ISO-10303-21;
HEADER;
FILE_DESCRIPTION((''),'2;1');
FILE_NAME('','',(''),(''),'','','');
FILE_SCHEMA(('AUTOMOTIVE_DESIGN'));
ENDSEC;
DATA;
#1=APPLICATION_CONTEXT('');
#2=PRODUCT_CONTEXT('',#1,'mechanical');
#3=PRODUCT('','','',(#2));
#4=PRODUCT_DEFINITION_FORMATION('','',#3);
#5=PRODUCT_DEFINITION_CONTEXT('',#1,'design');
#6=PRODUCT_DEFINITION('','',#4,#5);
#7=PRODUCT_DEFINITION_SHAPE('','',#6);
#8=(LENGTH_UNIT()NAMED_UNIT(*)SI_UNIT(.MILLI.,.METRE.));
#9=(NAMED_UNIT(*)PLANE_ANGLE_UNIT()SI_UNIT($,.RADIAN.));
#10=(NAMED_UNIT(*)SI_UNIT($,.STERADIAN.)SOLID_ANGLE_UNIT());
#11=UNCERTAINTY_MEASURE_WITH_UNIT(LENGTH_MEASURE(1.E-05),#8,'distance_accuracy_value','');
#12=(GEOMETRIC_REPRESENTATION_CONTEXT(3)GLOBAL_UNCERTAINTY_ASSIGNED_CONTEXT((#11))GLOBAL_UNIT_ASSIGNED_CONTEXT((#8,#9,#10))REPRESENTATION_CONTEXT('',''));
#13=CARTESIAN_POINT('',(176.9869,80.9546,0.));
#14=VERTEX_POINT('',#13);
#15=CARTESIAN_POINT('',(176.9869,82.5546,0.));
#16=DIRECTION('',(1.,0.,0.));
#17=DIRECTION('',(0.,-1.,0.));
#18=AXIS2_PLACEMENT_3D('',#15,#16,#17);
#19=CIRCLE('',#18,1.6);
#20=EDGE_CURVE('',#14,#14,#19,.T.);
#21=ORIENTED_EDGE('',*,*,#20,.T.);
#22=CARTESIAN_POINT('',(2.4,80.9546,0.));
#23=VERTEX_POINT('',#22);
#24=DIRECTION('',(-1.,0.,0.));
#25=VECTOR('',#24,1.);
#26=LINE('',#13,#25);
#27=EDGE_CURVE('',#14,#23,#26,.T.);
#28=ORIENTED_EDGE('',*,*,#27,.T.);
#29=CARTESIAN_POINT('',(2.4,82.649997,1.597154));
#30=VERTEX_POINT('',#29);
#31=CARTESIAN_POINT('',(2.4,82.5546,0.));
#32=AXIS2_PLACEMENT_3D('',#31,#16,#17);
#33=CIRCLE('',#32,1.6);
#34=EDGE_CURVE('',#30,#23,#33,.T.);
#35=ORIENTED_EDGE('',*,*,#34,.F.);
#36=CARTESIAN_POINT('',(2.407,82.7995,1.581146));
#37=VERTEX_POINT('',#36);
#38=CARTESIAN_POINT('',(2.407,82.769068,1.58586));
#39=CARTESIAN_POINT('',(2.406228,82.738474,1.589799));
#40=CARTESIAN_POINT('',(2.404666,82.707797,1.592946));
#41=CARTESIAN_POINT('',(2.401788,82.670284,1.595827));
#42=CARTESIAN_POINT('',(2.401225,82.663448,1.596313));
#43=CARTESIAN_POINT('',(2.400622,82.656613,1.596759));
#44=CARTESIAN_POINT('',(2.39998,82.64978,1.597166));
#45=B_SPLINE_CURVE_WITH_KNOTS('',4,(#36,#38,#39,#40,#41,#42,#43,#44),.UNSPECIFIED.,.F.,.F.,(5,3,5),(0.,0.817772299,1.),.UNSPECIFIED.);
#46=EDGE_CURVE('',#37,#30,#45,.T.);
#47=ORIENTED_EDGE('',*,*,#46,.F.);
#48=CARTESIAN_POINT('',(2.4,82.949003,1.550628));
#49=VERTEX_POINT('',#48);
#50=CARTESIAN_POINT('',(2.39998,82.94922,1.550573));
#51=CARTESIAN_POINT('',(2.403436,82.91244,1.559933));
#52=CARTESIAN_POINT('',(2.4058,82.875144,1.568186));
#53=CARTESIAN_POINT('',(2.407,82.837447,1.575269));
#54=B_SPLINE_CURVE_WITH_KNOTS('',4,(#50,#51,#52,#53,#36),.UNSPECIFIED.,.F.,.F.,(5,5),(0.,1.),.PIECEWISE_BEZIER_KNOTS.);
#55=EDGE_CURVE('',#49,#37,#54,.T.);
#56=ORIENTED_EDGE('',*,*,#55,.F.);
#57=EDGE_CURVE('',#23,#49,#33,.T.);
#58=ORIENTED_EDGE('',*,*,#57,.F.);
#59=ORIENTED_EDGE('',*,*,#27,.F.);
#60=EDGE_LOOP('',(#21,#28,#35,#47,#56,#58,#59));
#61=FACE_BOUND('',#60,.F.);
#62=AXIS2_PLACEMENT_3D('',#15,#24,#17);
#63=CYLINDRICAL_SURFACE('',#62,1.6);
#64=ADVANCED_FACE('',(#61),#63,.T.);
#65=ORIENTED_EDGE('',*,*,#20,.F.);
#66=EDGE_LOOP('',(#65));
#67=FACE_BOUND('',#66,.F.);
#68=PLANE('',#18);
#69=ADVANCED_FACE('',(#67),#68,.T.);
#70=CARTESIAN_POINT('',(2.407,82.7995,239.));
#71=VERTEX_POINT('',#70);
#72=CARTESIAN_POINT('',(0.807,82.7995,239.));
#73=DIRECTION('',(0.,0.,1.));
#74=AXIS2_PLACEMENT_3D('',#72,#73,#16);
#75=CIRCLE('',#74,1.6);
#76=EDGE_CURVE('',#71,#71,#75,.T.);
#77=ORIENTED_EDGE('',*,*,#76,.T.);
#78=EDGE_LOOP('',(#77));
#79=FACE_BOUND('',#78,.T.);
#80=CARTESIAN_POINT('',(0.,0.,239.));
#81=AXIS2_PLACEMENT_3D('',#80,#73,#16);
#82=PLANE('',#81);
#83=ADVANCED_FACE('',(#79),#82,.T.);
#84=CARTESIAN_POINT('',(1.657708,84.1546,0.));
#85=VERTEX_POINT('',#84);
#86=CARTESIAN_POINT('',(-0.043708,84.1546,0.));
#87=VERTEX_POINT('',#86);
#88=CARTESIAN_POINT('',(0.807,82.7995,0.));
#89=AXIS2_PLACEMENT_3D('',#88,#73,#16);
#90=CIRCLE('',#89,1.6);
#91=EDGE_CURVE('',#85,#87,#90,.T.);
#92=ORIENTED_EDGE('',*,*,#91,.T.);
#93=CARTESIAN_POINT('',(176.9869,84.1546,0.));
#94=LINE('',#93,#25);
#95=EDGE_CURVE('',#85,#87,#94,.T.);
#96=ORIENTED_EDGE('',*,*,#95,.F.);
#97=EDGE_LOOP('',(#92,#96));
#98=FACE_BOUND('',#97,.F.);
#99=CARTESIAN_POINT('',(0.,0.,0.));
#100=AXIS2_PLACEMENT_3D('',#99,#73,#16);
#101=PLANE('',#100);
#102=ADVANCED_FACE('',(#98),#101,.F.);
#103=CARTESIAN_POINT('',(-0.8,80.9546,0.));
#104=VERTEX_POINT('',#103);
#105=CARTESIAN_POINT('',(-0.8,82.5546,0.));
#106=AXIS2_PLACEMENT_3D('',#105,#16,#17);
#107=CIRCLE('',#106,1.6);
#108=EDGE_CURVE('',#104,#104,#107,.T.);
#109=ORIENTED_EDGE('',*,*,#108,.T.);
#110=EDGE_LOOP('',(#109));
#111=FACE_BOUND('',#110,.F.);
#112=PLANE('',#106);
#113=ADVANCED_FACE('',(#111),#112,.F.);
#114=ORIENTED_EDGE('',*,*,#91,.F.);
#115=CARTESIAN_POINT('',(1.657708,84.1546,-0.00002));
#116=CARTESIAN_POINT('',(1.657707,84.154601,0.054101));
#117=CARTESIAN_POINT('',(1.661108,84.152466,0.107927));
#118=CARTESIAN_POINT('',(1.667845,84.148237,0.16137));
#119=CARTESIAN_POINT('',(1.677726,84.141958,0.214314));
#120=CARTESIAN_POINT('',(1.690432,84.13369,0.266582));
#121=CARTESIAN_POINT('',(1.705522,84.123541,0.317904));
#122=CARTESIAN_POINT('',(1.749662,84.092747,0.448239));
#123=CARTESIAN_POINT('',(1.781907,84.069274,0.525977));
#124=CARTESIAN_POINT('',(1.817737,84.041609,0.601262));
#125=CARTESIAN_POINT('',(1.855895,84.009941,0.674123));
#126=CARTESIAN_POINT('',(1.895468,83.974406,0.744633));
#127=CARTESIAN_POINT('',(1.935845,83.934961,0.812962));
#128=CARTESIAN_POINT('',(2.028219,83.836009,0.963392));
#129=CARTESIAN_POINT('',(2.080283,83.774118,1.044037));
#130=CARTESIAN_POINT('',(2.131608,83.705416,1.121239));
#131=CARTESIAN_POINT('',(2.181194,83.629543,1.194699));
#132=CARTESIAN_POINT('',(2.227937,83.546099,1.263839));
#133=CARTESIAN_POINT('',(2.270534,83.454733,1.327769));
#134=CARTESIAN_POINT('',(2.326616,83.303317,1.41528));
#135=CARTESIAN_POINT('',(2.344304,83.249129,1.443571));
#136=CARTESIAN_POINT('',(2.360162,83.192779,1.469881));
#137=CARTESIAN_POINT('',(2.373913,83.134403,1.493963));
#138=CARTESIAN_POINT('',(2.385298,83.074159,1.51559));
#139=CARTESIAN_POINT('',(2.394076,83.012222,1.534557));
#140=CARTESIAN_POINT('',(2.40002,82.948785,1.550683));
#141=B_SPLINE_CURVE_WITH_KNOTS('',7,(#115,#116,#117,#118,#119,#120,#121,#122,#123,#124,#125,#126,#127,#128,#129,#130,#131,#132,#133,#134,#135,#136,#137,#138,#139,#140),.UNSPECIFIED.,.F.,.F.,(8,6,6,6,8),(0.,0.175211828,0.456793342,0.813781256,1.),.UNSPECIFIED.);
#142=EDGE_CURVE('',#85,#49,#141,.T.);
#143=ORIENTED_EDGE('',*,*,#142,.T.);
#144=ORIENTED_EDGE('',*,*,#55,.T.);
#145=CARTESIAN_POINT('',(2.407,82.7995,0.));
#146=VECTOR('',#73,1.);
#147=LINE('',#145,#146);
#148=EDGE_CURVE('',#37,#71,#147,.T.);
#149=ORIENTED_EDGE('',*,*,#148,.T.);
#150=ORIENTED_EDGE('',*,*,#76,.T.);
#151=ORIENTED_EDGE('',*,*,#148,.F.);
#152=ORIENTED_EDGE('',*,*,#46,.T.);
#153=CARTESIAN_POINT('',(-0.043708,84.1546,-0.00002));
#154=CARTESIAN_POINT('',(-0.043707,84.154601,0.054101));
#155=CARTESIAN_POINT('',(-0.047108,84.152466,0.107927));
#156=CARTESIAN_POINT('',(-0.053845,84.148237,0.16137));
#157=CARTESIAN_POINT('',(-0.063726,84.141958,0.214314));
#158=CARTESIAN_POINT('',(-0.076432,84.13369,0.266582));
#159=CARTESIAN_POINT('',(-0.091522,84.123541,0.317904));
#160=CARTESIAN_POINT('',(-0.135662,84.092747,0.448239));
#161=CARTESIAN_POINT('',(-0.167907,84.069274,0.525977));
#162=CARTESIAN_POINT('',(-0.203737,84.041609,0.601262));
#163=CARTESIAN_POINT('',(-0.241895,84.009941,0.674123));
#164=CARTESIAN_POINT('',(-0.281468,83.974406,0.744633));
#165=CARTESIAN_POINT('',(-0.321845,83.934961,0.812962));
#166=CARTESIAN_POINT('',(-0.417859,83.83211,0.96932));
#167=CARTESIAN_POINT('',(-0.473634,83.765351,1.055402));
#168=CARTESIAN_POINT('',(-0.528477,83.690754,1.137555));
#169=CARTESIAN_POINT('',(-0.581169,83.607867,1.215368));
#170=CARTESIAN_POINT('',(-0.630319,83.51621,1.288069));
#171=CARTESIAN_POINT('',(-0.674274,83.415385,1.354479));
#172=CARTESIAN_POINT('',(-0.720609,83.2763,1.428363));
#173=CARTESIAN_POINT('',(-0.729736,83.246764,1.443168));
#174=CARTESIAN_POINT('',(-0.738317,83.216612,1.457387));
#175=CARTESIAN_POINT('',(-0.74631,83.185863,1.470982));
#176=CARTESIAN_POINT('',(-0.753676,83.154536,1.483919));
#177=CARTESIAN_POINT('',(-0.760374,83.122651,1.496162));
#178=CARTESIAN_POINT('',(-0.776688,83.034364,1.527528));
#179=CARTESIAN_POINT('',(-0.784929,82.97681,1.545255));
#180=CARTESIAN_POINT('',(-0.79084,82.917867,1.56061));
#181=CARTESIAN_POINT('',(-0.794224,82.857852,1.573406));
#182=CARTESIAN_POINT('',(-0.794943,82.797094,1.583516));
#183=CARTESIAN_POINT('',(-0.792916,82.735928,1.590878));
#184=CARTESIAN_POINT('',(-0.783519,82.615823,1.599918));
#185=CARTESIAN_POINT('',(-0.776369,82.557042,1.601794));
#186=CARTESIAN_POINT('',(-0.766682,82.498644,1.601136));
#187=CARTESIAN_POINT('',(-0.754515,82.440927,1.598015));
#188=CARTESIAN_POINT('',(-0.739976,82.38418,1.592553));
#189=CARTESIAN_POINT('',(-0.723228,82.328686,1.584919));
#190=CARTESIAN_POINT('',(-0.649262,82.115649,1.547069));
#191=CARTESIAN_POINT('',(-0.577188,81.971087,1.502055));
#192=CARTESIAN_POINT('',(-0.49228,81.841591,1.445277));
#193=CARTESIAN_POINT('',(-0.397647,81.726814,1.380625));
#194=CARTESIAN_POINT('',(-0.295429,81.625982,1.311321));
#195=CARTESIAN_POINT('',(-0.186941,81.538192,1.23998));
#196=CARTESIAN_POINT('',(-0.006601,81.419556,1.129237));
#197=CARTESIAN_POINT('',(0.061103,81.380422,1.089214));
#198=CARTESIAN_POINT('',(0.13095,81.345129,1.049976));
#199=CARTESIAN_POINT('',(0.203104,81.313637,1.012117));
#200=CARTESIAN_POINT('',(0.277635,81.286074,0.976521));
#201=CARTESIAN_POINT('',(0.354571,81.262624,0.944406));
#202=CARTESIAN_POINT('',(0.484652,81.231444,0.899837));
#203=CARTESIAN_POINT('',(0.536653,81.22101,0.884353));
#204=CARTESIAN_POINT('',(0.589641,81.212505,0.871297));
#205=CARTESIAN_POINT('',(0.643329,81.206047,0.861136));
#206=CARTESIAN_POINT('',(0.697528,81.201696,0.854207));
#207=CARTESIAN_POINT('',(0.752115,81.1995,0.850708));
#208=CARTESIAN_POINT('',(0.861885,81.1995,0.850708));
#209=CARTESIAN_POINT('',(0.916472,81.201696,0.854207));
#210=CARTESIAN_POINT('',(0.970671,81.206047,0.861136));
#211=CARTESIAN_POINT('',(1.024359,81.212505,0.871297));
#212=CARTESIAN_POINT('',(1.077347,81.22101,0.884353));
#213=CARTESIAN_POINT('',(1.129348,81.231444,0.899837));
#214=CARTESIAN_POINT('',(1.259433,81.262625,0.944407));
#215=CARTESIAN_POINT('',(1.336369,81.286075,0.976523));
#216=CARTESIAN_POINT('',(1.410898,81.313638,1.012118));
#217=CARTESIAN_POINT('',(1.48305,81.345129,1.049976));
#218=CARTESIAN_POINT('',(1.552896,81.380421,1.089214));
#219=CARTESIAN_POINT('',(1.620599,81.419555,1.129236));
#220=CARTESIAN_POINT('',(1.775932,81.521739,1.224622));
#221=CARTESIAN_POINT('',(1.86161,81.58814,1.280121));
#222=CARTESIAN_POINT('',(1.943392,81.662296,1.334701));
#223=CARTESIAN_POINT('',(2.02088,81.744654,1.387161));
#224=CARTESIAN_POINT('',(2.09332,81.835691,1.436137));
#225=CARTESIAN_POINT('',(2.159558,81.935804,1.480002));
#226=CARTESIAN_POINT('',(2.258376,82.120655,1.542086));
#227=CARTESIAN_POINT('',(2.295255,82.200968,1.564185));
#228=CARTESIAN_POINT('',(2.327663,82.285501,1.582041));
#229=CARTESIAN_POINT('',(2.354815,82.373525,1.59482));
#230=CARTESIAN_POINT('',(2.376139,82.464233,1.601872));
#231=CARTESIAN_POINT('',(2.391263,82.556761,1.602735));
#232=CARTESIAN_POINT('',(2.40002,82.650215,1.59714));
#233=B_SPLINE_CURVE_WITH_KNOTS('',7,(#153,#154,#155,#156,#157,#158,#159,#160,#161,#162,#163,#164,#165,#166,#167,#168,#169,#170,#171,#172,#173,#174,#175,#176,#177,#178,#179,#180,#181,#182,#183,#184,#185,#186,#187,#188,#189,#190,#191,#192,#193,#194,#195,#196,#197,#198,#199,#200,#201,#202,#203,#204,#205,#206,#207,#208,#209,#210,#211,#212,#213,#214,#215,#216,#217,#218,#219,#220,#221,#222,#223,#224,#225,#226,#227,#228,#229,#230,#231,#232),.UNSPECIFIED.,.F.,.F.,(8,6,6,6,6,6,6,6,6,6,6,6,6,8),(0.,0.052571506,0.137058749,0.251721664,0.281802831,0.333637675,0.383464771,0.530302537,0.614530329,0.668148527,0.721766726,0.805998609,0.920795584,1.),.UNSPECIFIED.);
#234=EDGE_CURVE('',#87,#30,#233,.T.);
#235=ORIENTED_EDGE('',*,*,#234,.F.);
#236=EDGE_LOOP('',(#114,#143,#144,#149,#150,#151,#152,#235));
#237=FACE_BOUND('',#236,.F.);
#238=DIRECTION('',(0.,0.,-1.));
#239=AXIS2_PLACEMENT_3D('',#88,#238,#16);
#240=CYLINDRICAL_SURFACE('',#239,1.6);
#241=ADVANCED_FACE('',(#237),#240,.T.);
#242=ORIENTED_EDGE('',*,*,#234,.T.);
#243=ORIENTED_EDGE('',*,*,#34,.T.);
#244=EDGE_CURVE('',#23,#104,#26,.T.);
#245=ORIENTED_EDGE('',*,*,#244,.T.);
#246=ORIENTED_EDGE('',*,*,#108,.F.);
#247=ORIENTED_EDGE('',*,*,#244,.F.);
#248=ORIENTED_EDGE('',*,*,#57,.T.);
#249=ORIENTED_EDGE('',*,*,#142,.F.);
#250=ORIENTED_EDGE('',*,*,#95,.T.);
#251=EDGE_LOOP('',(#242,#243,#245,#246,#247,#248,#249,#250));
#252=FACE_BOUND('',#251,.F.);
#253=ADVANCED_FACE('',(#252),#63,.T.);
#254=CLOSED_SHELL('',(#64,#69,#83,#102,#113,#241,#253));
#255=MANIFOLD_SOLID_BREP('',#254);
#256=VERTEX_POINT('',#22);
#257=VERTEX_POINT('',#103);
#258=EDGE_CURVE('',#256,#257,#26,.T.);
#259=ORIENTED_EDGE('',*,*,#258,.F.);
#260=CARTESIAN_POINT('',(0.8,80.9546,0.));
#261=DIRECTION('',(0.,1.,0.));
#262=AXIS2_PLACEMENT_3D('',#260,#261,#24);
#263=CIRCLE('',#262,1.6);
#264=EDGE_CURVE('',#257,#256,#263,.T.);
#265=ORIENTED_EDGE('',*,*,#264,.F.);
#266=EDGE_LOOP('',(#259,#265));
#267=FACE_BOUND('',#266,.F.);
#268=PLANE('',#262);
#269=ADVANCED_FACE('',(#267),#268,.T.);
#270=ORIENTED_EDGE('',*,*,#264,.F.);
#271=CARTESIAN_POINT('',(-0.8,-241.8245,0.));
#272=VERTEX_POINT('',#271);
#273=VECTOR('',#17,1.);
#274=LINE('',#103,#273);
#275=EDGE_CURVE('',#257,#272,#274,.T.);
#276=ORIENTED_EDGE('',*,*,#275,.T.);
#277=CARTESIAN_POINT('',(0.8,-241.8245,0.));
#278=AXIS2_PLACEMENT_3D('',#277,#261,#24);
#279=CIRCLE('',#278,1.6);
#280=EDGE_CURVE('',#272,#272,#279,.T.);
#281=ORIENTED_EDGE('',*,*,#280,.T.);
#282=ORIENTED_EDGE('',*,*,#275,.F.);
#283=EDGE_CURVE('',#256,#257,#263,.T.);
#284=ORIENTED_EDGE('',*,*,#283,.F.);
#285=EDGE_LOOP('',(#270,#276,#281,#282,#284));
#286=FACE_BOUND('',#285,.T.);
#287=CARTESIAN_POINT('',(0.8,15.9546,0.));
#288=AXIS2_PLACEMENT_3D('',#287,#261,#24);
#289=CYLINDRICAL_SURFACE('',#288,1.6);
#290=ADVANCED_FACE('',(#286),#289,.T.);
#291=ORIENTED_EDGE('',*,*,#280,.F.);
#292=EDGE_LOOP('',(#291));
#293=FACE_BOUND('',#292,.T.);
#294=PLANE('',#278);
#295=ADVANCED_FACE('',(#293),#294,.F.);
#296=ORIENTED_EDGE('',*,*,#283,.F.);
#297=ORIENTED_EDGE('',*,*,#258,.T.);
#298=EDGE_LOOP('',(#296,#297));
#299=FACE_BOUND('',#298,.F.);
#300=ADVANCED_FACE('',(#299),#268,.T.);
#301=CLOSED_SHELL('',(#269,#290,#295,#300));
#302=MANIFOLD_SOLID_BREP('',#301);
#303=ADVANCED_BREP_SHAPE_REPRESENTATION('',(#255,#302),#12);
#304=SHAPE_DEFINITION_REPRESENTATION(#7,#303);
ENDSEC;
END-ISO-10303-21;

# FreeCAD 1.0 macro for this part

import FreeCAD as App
import Part
import Sketcher

V = App.Vector
Q = App.Units.Quantity


def add_polygon(sketch, points):
    """Adds a closed chain of lines whose ends are joined by coincident constraints."""
    first, n = sketch.GeometryCount, len(points)
    for a, b in zip(points, points[1:] + points[:1]):
        sketch.addGeometry(Part.LineSegment(App.Vector(*a, 0), App.Vector(*b, 0)), False)
    for i in range(n):
        sketch.addConstraint(Sketcher.Constraint("Coincident", first + i, 2, first + (i + 1) % n, 1))

doc = App.newDocument("Part")
body = doc.addObject("PartDesign::Body", "Body")
body.AllowCompound = True

# Sketch on XY plane
sketch1 = doc.addObject("Sketcher::SketchObject", "Sketch")
body.addObject(sketch1)
sketch1.AttachmentSupport = (doc.XY_Plane, [""])
sketch1.MapMode = "FlatFace"
add_polygon(sketch1, [(-0.8, 81), (-0.8, -241.8), (0.8, -241.8), (0.8, 81)])  # lines 0-3
sketch1.addGeometry(Part.LineSegment(V(0.8, -241.8, 0), V(0.8, 81, 0)), True)  # axis
sketch1.addConstraint(Sketcher.Constraint("Vertical", 0))
sketch1.addConstraint(Sketcher.Constraint("Horizontal", 1))
sketch1.addConstraint(Sketcher.Constraint("Vertical", 2))
sketch1.addConstraint(Sketcher.Constraint("Horizontal", 3))
sketch1.addConstraint(Sketcher.Constraint("Vertical", 4))
sketch1.addConstraint(Sketcher.Constraint("Coincident", 4, 1, 1, 2))
sketch1.addConstraint(Sketcher.Constraint("Symmetric", 3, 2, 4, 2, -2))
sketch1.addConstraint(Sketcher.Constraint("DistanceX", 1, 1, 1, 2, Q("1.6 mm")))
sketch1.addConstraint(Sketcher.Constraint("DistanceY", 0, 2, 0, 1, Q("322.779 mm")))
sketch1.addConstraint(Sketcher.Constraint("DistanceY", 0, 2, -1, 1, Q("241.8245 mm")))
revolution = doc.addObject("PartDesign::Revolution", "Revolution")
body.addObject(revolution)
revolution.Profile = sketch1
revolution.ReferenceAxis = (sketch1, ["Axis0"])
revolution.Angle = 360

# Sketch on XY plane
sketch2 = doc.addObject("Sketcher::SketchObject", "Sketch001")
body.addObject(sketch2)
sketch2.AttachmentSupport = (doc.XY_Plane, [""])
sketch2.MapMode = "FlatFace"
add_polygon(sketch2, [(177, 82.6), (-0.8, 82.6), (-0.8, 81), (177, 81)])  # lines 0-3
sketch2.addGeometry(Part.LineSegment(V(-0.8, 82.6, 0), V(177, 82.6, 0)), True)  # axis
sketch2.addConstraint(Sketcher.Constraint("Horizontal", 0))
sketch2.addConstraint(Sketcher.Constraint("Vertical", 1))
sketch2.addConstraint(Sketcher.Constraint("Horizontal", 2))
sketch2.addConstraint(Sketcher.Constraint("Vertical", 3))
sketch2.addConstraint(Sketcher.Constraint("Horizontal", 4))
sketch2.addConstraint(Sketcher.Constraint("Coincident", 4, 1, 0, 2))
sketch2.addConstraint(Sketcher.Constraint("Vertical", 2, 2, 4, 2))
sketch2.addConstraint(Sketcher.Constraint("DistanceY", 1, 2, 1, 1, Q("1.6 mm")))
sketch2.addConstraint(Sketcher.Constraint("DistanceX", 0, 2, -1, 1, Q("0.8 mm")))
sketch2.addConstraint(Sketcher.Constraint("DistanceX", 0, 2, 0, 1, Q("177.787 mm")))
sketch2.addConstraint(Sketcher.Constraint("DistanceY", -1, 1, 0, 2, Q("82.5546 mm")))
revolution2 = doc.addObject("PartDesign::Revolution", "Revolution001")
body.addObject(revolution2)
revolution2.Profile = sketch2
revolution2.ReferenceAxis = (sketch2, ["Axis0"])
revolution2.Angle = 360

# Sketch on XY plane
sketch3 = doc.addObject("Sketcher::SketchObject", "Sketch002")
body.addObject(sketch3)
sketch3.AttachmentSupport = (doc.XY_Plane, [""])
sketch3.MapMode = "FlatFace"
sketch3.addGeometry(Part.Circle(V(0.8, 82.8, 0), V(0, 0, 1), 1.6), False)
sketch3.addConstraint(Sketcher.Constraint("Diameter", 0, Q("3.2 mm")))
sketch3.addConstraint(Sketcher.Constraint("DistanceX", -1, 1, 0, 3, Q("0.807 mm")))
sketch3.addConstraint(Sketcher.Constraint("DistanceY", -1, 1, 0, 3, Q("82.7995 mm")))
pad1 = doc.addObject("PartDesign::Pad", "Pad")
body.addObject(pad1)
pad1.Profile = sketch3
pad1.Length = 239

doc.recompute()
